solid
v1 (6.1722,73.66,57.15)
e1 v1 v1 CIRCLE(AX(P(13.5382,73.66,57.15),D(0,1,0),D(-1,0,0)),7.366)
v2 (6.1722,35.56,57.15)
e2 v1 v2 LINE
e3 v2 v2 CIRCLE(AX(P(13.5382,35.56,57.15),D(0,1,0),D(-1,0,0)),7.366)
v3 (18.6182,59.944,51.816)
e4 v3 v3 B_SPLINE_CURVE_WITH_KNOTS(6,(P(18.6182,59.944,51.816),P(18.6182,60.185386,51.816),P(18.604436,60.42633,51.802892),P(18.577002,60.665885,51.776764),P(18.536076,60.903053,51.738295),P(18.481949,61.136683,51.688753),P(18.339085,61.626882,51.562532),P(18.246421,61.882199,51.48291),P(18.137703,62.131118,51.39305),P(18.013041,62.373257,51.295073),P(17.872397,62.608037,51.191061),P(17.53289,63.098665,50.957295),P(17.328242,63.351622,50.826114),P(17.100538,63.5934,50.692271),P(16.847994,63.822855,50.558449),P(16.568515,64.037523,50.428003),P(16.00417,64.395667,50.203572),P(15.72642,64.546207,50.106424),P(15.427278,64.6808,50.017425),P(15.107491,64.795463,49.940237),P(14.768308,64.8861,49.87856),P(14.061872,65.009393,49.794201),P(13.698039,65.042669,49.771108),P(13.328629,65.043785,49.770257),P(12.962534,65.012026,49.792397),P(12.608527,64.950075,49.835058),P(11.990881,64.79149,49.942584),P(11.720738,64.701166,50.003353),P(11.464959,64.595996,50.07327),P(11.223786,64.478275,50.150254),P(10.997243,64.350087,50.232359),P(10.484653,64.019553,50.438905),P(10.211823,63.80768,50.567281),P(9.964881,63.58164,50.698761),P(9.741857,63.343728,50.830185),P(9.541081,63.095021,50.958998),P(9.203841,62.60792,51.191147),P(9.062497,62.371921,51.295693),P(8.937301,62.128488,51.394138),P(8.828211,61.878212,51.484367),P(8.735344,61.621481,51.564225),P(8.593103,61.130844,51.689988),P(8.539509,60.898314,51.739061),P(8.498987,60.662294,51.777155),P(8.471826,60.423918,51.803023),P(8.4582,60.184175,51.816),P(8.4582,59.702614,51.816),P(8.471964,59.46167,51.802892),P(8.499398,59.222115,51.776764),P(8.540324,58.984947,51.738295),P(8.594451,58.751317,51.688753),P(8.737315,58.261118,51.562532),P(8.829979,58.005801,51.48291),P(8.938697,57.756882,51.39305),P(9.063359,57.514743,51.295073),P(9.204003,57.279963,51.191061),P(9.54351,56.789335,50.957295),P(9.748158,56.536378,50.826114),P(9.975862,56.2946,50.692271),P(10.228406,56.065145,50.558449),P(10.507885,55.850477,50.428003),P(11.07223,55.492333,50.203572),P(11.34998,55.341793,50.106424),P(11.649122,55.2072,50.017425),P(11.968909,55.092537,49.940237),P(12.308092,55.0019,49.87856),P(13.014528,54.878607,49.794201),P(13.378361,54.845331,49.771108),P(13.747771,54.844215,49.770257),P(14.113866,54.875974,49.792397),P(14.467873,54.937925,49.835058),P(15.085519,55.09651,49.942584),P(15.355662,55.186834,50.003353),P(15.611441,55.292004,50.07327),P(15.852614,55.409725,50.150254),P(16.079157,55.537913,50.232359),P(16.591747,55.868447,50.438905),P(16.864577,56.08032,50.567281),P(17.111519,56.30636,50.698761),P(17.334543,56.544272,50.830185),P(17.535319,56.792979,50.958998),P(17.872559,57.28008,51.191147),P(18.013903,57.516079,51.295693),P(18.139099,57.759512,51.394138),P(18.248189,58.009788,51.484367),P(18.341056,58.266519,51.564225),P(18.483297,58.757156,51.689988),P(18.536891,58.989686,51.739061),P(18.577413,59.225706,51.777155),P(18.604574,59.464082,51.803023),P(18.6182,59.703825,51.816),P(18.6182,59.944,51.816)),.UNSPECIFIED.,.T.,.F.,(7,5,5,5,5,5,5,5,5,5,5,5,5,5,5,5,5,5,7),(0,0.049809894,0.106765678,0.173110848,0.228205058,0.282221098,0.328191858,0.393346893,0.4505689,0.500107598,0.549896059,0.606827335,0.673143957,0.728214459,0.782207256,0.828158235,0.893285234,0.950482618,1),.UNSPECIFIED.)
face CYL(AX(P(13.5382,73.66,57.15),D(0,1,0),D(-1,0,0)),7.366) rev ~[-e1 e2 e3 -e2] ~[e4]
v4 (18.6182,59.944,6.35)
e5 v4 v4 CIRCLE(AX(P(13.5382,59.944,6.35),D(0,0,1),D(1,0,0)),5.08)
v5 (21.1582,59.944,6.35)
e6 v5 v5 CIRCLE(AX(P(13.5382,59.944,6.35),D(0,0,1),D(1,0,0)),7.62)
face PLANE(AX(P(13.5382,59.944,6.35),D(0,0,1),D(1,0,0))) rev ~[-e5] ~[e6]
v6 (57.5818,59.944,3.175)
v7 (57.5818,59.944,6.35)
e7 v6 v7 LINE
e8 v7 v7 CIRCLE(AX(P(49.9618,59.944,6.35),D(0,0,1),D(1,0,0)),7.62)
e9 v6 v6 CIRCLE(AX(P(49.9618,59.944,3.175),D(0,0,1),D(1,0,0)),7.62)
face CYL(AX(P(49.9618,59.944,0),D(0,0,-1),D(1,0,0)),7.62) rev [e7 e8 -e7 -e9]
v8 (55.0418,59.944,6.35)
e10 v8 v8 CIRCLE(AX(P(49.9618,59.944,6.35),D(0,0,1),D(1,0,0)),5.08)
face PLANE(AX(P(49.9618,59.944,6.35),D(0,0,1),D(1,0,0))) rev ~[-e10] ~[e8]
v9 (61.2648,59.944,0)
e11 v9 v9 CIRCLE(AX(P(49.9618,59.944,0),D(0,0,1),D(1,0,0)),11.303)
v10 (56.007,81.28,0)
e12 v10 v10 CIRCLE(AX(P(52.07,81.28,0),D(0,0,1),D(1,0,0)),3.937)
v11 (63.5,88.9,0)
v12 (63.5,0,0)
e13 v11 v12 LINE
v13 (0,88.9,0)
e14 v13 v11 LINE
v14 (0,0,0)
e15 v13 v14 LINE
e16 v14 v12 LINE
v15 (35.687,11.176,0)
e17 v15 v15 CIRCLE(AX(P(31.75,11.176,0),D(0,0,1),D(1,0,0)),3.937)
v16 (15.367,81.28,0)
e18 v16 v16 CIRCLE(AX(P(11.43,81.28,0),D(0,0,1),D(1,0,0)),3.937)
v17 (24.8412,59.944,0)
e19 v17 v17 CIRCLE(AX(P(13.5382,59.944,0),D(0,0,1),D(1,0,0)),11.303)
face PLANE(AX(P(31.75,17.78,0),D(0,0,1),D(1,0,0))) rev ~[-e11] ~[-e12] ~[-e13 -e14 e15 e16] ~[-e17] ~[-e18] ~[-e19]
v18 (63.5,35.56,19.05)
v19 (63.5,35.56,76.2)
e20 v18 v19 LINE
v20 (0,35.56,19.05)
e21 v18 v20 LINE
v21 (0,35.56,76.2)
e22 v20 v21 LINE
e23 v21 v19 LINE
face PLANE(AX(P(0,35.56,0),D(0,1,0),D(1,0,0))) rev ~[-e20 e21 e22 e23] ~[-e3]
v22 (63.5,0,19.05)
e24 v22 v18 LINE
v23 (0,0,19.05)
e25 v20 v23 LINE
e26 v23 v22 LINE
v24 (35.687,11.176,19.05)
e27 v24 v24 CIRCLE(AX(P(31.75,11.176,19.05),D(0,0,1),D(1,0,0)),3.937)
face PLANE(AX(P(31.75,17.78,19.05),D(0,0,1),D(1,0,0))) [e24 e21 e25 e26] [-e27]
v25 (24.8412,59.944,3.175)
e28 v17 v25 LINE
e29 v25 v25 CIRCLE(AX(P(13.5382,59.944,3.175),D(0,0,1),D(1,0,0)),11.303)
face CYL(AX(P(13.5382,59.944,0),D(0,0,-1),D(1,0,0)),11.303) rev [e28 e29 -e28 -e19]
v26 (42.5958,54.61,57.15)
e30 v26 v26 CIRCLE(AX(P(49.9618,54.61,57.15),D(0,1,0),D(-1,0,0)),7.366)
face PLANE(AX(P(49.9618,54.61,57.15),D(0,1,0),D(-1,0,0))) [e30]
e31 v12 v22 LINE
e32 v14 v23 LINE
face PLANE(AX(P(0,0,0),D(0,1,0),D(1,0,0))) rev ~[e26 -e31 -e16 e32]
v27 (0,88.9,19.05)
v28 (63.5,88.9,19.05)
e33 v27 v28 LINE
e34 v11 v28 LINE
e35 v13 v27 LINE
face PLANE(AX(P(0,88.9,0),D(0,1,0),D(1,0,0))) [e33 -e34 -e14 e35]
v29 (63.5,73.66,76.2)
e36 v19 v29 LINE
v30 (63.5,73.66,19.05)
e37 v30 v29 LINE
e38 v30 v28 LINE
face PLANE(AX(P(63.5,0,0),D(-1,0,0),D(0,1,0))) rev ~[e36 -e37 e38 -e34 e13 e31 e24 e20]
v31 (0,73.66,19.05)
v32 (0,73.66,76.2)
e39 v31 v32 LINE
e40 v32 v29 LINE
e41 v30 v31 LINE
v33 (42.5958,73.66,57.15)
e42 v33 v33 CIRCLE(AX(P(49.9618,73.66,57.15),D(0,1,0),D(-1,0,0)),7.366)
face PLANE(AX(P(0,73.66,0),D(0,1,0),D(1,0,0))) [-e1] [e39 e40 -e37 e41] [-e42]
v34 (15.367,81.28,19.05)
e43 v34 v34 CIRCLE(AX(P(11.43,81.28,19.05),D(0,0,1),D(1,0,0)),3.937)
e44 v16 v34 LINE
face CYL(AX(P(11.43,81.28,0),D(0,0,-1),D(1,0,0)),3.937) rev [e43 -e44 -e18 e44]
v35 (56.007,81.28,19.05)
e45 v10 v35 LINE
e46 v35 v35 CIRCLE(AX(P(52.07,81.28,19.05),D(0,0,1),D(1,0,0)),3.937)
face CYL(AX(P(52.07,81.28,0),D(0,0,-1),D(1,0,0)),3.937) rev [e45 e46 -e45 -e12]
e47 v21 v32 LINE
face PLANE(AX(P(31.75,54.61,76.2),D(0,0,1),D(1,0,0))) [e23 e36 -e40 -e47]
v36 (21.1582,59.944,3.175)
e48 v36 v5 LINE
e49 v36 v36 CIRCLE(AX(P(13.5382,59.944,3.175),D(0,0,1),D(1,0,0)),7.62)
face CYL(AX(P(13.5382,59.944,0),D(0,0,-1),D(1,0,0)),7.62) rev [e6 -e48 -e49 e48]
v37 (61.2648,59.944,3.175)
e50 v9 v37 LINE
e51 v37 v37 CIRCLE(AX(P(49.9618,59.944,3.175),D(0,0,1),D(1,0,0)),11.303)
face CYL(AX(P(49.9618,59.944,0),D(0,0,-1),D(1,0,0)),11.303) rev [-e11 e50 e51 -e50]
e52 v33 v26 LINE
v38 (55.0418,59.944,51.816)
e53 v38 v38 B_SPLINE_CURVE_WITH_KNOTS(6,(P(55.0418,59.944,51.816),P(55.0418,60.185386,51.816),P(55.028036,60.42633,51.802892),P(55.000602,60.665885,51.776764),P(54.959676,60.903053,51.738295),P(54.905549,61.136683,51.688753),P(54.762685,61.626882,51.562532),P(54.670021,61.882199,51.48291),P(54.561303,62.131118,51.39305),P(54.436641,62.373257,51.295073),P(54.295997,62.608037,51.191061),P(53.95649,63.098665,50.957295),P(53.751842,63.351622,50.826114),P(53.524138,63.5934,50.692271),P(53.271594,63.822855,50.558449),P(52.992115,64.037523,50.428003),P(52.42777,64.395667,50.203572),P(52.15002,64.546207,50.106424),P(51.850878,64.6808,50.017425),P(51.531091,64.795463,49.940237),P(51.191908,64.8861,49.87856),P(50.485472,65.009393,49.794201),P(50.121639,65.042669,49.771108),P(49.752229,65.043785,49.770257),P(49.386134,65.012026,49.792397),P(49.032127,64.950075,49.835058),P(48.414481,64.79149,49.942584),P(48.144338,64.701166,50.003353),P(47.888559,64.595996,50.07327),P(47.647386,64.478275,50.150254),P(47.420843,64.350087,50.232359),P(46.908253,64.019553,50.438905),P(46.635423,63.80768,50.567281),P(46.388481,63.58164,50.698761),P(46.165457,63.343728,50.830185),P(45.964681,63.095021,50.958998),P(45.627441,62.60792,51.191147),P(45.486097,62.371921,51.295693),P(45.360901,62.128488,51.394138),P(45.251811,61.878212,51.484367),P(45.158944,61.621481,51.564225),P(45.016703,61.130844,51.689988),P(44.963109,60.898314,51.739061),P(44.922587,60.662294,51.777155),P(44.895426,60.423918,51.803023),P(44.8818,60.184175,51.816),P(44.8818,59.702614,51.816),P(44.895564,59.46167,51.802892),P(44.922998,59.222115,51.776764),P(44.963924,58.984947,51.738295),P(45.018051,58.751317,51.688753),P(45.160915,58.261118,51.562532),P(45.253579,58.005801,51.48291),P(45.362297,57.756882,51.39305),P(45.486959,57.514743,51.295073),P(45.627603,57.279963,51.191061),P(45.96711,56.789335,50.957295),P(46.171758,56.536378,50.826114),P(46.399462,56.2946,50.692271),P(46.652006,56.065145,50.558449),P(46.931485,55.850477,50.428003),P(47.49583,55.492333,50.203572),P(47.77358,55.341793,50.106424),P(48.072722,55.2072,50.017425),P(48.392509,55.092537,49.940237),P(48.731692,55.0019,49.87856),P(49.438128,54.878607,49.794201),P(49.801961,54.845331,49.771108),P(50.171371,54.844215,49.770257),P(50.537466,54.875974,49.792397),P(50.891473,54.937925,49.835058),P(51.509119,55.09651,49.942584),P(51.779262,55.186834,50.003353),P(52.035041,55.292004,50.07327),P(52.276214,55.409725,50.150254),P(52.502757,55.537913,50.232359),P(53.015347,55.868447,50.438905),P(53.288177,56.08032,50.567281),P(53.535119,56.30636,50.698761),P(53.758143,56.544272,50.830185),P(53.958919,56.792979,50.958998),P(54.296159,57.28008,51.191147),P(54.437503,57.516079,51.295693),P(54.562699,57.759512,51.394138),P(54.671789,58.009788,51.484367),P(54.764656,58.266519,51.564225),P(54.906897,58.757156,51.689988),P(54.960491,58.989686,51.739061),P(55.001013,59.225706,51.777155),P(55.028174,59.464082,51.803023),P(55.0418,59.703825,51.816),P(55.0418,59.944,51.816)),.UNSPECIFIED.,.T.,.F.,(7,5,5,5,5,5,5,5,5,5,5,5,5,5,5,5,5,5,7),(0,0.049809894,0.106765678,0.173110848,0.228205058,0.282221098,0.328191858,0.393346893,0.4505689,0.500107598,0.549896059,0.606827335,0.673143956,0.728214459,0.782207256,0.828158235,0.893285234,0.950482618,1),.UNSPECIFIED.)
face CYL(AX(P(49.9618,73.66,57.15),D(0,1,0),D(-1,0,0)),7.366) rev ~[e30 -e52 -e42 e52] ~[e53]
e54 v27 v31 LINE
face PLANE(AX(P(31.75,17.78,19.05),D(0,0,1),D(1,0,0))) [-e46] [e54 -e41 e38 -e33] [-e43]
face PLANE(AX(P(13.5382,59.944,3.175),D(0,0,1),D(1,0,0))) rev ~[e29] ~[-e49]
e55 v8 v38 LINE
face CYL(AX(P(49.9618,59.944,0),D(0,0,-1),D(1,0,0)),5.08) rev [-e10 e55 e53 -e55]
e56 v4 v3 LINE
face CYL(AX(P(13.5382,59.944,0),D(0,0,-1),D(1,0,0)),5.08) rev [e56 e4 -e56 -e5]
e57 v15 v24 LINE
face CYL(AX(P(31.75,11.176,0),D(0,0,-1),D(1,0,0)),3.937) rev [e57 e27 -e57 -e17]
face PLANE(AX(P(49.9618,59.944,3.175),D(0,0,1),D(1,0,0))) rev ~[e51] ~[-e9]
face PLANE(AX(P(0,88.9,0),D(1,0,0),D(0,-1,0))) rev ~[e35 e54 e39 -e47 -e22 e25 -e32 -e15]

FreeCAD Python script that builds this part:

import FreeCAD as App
import Part
import Sketcher
Q = App.Units.Quantity


def add_polygon(sketch, points):
    """Adds a closed chain of lines whose ends are joined by coincident constraints."""
    first, n = sketch.GeometryCount, len(points)
    for a, b in zip(points, points[1:] + points[:1]):
        sketch.addGeometry(Part.LineSegment(App.Vector(*a, 0), App.Vector(*b, 0)), False)
    for i in range(n):
        sketch.addConstraint(Sketcher.Constraint("Coincident", first + i, 2, first + (i + 1) % n, 1))

doc = App.newDocument("Part")
params = doc.addObject("Spreadsheet::Sheet", "Params")
for row, (alias, value) in enumerate([
    ("sketch1_diameter", "0.4 in"),
    ("sketch1_diameter2", "0.31 in"),
    ("sketch1_diameter3", "0.89 in"),
    ("sketch1_width", "2.5 in"),
    ("sketch1_height", "3.5 in"),
    ("pad1_length", "0.75 in"),
    ("sketch2_width", "2.5 in"),
    ("sketch2_height", "1.5 in"),
    ("pad2_length", "3 in"),
    ("sketch3_diameter", "0.6 in"),
    ("sketch3_diameter2", "0.89 in"),
    ("pocket1_length", "0.125 in"),
    ("sketch4_diameter", "0.6 in"),
    ("sketch4_diameter2", "0.4 in"),
    ("pocket2_length", "0.25 in"),
    ("sketch5_diameter", "0.58 in"),
    ("pocket3_length", "0.75 in"),
    ("sketch6_diameter", "0.58 in"),
    ("pocket4_length", "2 in"),
    ("sketch7_diameter", "0.4 in"),
    ("pocket5_length", "2.25 in"),
], start=1):
    params.set(f"A{row}", alias)
    params.set(f"B{row}", "=" + value)
    params.setAlias(f"B{row}", alias)

body = doc.addObject("PartDesign::Body", "Body")
body.AllowCompound = True

# Sketch on XY plane
sketch1 = doc.addObject("Sketcher::SketchObject", "Sketch")
body.addObject(sketch1)
sketch1.AttachmentSupport = (doc.XY_Plane, [""])
sketch1.MapMode = "FlatFace"
add_polygon(sketch1, [(0, 0), (63.5, 0), (63.5, 88.9), (0, 88.9)])  # lines 0-3
sketch1.addGeometry(Part.Circle(App.Vector(31.8, 11.2, 0), App.Vector(0, 0, 1), 3.9), False)  # 4
sketch1.addGeometry(Part.Circle(App.Vector(13.5, 59.9, 0), App.Vector(0, 0, 1), 11.3), False)  # 5
sketch1.addGeometry(Part.Circle(App.Vector(11.4, 81.3, 0), App.Vector(0, 0, 1), 3.9), False)  # 6
sketch1.addGeometry(Part.Circle(App.Vector(50, 59.9, 0), App.Vector(0, 0, 1), 11.3), False)  # 7
sketch1.addGeometry(Part.Circle(App.Vector(52.1, 81.3, 0), App.Vector(0, 0, 1), 3.9), False)  # 8
sketch1.addGeometry(Part.Circle(App.Vector(50, 59.9, 0), App.Vector(0, 0, 1), 5.1), False)  # 9
sketch1.addGeometry(Part.Circle(App.Vector(13.5, 59.9, 0), App.Vector(0, 0, 1), 5.1), False)  # 10
sketch1.addConstraint([
    Sketcher.Constraint("Horizontal", 0),
    Sketcher.Constraint("Vertical", 1),
    Sketcher.Constraint("Horizontal", 2),
    Sketcher.Constraint("Vertical", 3),
    Sketcher.Constraint("Coincident", 3, 2, -1, 1),
    Sketcher.Constraint("Coincident", 9, 3, 7, 3),
    Sketcher.Constraint("Coincident", 10, 3, 5, 3),
    Sketcher.Constraint("Equal", 4, 6),
    Sketcher.Constraint("Equal", 5, 7),
    Sketcher.Constraint("Equal", 6, 8),
    Sketcher.Constraint("Equal", 9, 10),
    Sketcher.Constraint("Horizontal", 5, 3, 7, 3),
    Sketcher.Constraint("Horizontal", 6, 3, 8, 3),
    Sketcher.Constraint("Diameter", 9, Q("0.4 in")),
    Sketcher.Constraint("Diameter", 4, Q("0.31 in")),
    Sketcher.Constraint("Diameter", 5, Q("0.89 in")),
    Sketcher.Constraint("DistanceX", 0, 1, 0, 2, Q("2.5 in")),
    Sketcher.Constraint("DistanceY", 1, 1, 1, 2, Q("3.5 in")),
    Sketcher.Constraint("DistanceY", -1, 1, 6, 3, Q("3.2 in")),
    Sketcher.Constraint("DistanceX", 6, 3, 4, 3, Q("0.8 in")),
    Sketcher.Constraint("DistanceX", 6, 3, 8, 3, Q("1.6 in")),
    Sketcher.Constraint("DistanceX", -1, 1, 4, 3, Q("1.25 in")),
    Sketcher.Constraint("DistanceY", -1, 1, 4, 3, Q("0.44 in")),
    Sketcher.Constraint("DistanceY", -1, 1, 5, 3, Q("2.36 in")),
    Sketcher.Constraint("DistanceX", -1, 1, 5, 3, Q("0.533 in")),
    Sketcher.Constraint("DistanceX", -1, 1, 7, 3, Q("1.967 in")),
])
sketch1.setExpression("Constraints[17]", "Params.sketch1_diameter")
sketch1.setExpression("Constraints[18]", "Params.sketch1_diameter2")
sketch1.setExpression("Constraints[19]", "Params.sketch1_diameter3")
sketch1.setExpression("Constraints[20]", "Params.sketch1_width")
sketch1.setExpression("Constraints[21]", "Params.sketch1_height")
pad1 = doc.addObject("PartDesign::Pad", "Pad")
body.addObject(pad1)
pad1.Profile = sketch1
pad1.setExpression("Length", "Params.pad1_length")

# Sketch on XY plane
sketch2 = doc.addObject("Sketcher::SketchObject", "Sketch001")
body.addObject(sketch2)
sketch2.AttachmentSupport = (doc.XY_Plane, [""])
sketch2.MapMode = "FlatFace"
add_polygon(sketch2, [(0, 74), (0, 36), (64, 36), (64, 74)])  # lines 0-3
sketch2.addConstraint([
    Sketcher.Constraint("Vertical", 0),
    Sketcher.Constraint("Horizontal", 1),
    Sketcher.Constraint("Vertical", 2),
    Sketcher.Constraint("Horizontal", 3),
    Sketcher.Constraint("PointOnObject", 0, 2, -2),
    Sketcher.Constraint("DistanceX", 1, 1, 1, 2, Q("2.5 in")),
    Sketcher.Constraint("DistanceY", 0, 2, 0, 1, Q("1.5 in")),
    Sketcher.Constraint("DistanceY", -1, 1, 0, 2, Q("1.4 in")),
])
sketch2.setExpression("Constraints[9]", "Params.sketch2_width")
sketch2.setExpression("Constraints[10]", "Params.sketch2_height")
pad2 = doc.addObject("PartDesign::Pad", "Pad001")
body.addObject(pad2)
pad2.Profile = sketch2
pad2.setExpression("Length", "Params.pad2_length")

# Sketch on XY plane
sketch3 = doc.addObject("Sketcher::SketchObject", "Sketch002")
body.addObject(sketch3)
sketch3.AttachmentSupport = (doc.XY_Plane, [""])
sketch3.MapMode = "FlatFace"
sketch3.addGeometry([
    Part.Circle(App.Vector(50, 60, 0), App.Vector(0, 0, 1), 11),
    Part.Circle(App.Vector(50, 60, 0), App.Vector(0, 0, 1), 8),
    Part.Circle(App.Vector(14, 60, 0), App.Vector(0, 0, 1), 11),
    Part.Circle(App.Vector(14, 60, 0), App.Vector(0, 0, 1), 8),
], False)
sketch3.addConstraint([
    Sketcher.Constraint("Coincident", 1, 3, 0, 3),
    Sketcher.Constraint("Coincident", 3, 3, 2, 3),
    Sketcher.Constraint("Equal", 0, 2),
    Sketcher.Constraint("Equal", 1, 3),
    Sketcher.Constraint("Horizontal", 1, 3, 2, 3),
    Sketcher.Constraint("Diameter", 1, Q("0.6 in")),
    Sketcher.Constraint("Diameter", 0, Q("0.89 in")),
    Sketcher.Constraint("DistanceY", -1, 1, 0, 3, Q("2.36 in")),
    Sketcher.Constraint("DistanceX", -1, 1, 0, 3, Q("1.967 in")),
    Sketcher.Constraint("DistanceX", -1, 1, 2, 3, Q("0.533 in")),
])
sketch3.setExpression("Constraints[5]", "Params.sketch3_diameter")
sketch3.setExpression("Constraints[6]", "Params.sketch3_diameter2")
pocket1 = doc.addObject("PartDesign::Pocket", "Pocket")
body.addObject(pocket1)
pocket1.Profile = sketch3
pocket1.setExpression("Length", "Params.pocket1_length")
pocket1.Reversed = True

# Sketch on XY plane
sketch4 = doc.addObject("Sketcher::SketchObject", "Sketch003")
body.addObject(sketch4)
sketch4.AttachmentSupport = (doc.XY_Plane, [""])
sketch4.MapMode = "FlatFace"
sketch4.addGeometry([
    Part.Circle(App.Vector(50, 60, 0), App.Vector(0, 0, 1), 8),
    Part.Circle(App.Vector(50, 60, 0), App.Vector(0, 0, 1), 5),
    Part.Circle(App.Vector(14, 60, 0), App.Vector(0, 0, 1), 8),
    Part.Circle(App.Vector(14, 60, 0), App.Vector(0, 0, 1), 5),
], False)
sketch4.addConstraint([
    Sketcher.Constraint("Coincident", 1, 3, 0, 3),
    Sketcher.Constraint("Coincident", 3, 3, 2, 3),
    Sketcher.Constraint("Equal", 0, 2),
    Sketcher.Constraint("Equal", 1, 3),
    Sketcher.Constraint("Horizontal", 1, 3, 2, 3),
    Sketcher.Constraint("Diameter", 0, Q("0.6 in")),
    Sketcher.Constraint("Diameter", 1, Q("0.4 in")),
    Sketcher.Constraint("DistanceY", -1, 1, 0, 3, Q("2.36 in")),
    Sketcher.Constraint("DistanceX", -1, 1, 0, 3, Q("1.967 in")),
    Sketcher.Constraint("DistanceX", -1, 1, 2, 3, Q("0.533 in")),
])
sketch4.setExpression("Constraints[5]", "Params.sketch4_diameter")
sketch4.setExpression("Constraints[6]", "Params.sketch4_diameter2")
pocket2 = doc.addObject("PartDesign::Pocket", "Pocket001")
body.addObject(pocket2)
pocket2.Profile = sketch4
pocket2.setExpression("Length", "Params.pocket2_length")
pocket2.Reversed = True

# Sketch on XZ plane
sketch5 = doc.addObject("Sketcher::SketchObject", "Sketch004")
body.addObject(sketch5)
sketch5.AttachmentSupport = (doc.XZ_Plane, [""])
sketch5.MapMode = "FlatFace"
sketch5.AttachmentOffset = App.Placement(App.Vector(0, 0, -2.9 * 25.4), App.Rotation())
sketch5.addGeometry(Part.Circle(App.Vector(50, 57, 0), App.Vector(0, 0, 1), 7), False)
sketch5.addConstraint([
    Sketcher.Constraint("Diameter", 0, Q("0.58 in")),
    Sketcher.Constraint("DistanceY", -1, 1, 0, 3, Q("2.25 in")),
    Sketcher.Constraint("DistanceX", -1, 1, 0, 3, Q("1.967 in")),
])
sketch5.setExpression("Constraints[0]", "Params.sketch5_diameter")
pocket3 = doc.addObject("PartDesign::Pocket", "Pocket002")
body.addObject(pocket3)
pocket3.Profile = sketch5
pocket3.setExpression("Length", "Params.pocket3_length")
pocket3.Reversed = True

# Sketch on XZ plane
sketch6 = doc.addObject("Sketcher::SketchObject", "Sketch005")
body.addObject(sketch6)
sketch6.AttachmentSupport = (doc.XZ_Plane, [""])
sketch6.MapMode = "FlatFace"
sketch6.AttachmentOffset = App.Placement(App.Vector(0, 0, -2.9 * 25.4), App.Rotation())
sketch6.addGeometry(Part.Circle(App.Vector(14, 57, 0), App.Vector(0, 0, 1), 7), False)
sketch6.addConstraint([
    Sketcher.Constraint("Diameter", 0, Q("0.58 in")),
    Sketcher.Constraint("DistanceY", -1, 1, 0, 3, Q("2.25 in")),
    Sketcher.Constraint("DistanceX", -1, 1, 0, 3, Q("0.533 in")),
])
sketch6.setExpression("Constraints[0]", "Params.sketch6_diameter")
pocket4 = doc.addObject("PartDesign::Pocket", "Pocket003")
body.addObject(pocket4)
pocket4.Profile = sketch6
pocket4.setExpression("Length", "Params.pocket4_length")
pocket4.Reversed = True

# Sketch on XY plane
sketch7 = doc.addObject("Sketcher::SketchObject", "Sketch006")
body.addObject(sketch7)
sketch7.AttachmentSupport = (doc.XY_Plane, [""])
sketch7.MapMode = "FlatFace"
sketch7.addGeometry([
    Part.Circle(App.Vector(50, 60, 0), App.Vector(0, 0, 1), 5),
    Part.Circle(App.Vector(14, 60, 0), App.Vector(0, 0, 1), 5),
], False)
sketch7.addConstraint([
    Sketcher.Constraint("Equal", 0, 1),
    Sketcher.Constraint("Horizontal", 0, 3, 1, 3),
    Sketcher.Constraint("Diameter", 0, Q("0.4 in")),
    Sketcher.Constraint("DistanceY", -1, 1, 0, 3, Q("2.36 in")),
    Sketcher.Constraint("DistanceX", -1, 1, 0, 3, Q("1.967 in")),
    Sketcher.Constraint("DistanceX", -1, 1, 1, 3, Q("0.533 in")),
])
sketch7.setExpression("Constraints[2]", "Params.sketch7_diameter")
pocket5 = doc.addObject("PartDesign::Pocket", "Pocket004")
body.addObject(pocket5)
pocket5.Profile = sketch7
pocket5.setExpression("Length", "Params.pocket5_length")
pocket5.Reversed = True

doc.recompute()
